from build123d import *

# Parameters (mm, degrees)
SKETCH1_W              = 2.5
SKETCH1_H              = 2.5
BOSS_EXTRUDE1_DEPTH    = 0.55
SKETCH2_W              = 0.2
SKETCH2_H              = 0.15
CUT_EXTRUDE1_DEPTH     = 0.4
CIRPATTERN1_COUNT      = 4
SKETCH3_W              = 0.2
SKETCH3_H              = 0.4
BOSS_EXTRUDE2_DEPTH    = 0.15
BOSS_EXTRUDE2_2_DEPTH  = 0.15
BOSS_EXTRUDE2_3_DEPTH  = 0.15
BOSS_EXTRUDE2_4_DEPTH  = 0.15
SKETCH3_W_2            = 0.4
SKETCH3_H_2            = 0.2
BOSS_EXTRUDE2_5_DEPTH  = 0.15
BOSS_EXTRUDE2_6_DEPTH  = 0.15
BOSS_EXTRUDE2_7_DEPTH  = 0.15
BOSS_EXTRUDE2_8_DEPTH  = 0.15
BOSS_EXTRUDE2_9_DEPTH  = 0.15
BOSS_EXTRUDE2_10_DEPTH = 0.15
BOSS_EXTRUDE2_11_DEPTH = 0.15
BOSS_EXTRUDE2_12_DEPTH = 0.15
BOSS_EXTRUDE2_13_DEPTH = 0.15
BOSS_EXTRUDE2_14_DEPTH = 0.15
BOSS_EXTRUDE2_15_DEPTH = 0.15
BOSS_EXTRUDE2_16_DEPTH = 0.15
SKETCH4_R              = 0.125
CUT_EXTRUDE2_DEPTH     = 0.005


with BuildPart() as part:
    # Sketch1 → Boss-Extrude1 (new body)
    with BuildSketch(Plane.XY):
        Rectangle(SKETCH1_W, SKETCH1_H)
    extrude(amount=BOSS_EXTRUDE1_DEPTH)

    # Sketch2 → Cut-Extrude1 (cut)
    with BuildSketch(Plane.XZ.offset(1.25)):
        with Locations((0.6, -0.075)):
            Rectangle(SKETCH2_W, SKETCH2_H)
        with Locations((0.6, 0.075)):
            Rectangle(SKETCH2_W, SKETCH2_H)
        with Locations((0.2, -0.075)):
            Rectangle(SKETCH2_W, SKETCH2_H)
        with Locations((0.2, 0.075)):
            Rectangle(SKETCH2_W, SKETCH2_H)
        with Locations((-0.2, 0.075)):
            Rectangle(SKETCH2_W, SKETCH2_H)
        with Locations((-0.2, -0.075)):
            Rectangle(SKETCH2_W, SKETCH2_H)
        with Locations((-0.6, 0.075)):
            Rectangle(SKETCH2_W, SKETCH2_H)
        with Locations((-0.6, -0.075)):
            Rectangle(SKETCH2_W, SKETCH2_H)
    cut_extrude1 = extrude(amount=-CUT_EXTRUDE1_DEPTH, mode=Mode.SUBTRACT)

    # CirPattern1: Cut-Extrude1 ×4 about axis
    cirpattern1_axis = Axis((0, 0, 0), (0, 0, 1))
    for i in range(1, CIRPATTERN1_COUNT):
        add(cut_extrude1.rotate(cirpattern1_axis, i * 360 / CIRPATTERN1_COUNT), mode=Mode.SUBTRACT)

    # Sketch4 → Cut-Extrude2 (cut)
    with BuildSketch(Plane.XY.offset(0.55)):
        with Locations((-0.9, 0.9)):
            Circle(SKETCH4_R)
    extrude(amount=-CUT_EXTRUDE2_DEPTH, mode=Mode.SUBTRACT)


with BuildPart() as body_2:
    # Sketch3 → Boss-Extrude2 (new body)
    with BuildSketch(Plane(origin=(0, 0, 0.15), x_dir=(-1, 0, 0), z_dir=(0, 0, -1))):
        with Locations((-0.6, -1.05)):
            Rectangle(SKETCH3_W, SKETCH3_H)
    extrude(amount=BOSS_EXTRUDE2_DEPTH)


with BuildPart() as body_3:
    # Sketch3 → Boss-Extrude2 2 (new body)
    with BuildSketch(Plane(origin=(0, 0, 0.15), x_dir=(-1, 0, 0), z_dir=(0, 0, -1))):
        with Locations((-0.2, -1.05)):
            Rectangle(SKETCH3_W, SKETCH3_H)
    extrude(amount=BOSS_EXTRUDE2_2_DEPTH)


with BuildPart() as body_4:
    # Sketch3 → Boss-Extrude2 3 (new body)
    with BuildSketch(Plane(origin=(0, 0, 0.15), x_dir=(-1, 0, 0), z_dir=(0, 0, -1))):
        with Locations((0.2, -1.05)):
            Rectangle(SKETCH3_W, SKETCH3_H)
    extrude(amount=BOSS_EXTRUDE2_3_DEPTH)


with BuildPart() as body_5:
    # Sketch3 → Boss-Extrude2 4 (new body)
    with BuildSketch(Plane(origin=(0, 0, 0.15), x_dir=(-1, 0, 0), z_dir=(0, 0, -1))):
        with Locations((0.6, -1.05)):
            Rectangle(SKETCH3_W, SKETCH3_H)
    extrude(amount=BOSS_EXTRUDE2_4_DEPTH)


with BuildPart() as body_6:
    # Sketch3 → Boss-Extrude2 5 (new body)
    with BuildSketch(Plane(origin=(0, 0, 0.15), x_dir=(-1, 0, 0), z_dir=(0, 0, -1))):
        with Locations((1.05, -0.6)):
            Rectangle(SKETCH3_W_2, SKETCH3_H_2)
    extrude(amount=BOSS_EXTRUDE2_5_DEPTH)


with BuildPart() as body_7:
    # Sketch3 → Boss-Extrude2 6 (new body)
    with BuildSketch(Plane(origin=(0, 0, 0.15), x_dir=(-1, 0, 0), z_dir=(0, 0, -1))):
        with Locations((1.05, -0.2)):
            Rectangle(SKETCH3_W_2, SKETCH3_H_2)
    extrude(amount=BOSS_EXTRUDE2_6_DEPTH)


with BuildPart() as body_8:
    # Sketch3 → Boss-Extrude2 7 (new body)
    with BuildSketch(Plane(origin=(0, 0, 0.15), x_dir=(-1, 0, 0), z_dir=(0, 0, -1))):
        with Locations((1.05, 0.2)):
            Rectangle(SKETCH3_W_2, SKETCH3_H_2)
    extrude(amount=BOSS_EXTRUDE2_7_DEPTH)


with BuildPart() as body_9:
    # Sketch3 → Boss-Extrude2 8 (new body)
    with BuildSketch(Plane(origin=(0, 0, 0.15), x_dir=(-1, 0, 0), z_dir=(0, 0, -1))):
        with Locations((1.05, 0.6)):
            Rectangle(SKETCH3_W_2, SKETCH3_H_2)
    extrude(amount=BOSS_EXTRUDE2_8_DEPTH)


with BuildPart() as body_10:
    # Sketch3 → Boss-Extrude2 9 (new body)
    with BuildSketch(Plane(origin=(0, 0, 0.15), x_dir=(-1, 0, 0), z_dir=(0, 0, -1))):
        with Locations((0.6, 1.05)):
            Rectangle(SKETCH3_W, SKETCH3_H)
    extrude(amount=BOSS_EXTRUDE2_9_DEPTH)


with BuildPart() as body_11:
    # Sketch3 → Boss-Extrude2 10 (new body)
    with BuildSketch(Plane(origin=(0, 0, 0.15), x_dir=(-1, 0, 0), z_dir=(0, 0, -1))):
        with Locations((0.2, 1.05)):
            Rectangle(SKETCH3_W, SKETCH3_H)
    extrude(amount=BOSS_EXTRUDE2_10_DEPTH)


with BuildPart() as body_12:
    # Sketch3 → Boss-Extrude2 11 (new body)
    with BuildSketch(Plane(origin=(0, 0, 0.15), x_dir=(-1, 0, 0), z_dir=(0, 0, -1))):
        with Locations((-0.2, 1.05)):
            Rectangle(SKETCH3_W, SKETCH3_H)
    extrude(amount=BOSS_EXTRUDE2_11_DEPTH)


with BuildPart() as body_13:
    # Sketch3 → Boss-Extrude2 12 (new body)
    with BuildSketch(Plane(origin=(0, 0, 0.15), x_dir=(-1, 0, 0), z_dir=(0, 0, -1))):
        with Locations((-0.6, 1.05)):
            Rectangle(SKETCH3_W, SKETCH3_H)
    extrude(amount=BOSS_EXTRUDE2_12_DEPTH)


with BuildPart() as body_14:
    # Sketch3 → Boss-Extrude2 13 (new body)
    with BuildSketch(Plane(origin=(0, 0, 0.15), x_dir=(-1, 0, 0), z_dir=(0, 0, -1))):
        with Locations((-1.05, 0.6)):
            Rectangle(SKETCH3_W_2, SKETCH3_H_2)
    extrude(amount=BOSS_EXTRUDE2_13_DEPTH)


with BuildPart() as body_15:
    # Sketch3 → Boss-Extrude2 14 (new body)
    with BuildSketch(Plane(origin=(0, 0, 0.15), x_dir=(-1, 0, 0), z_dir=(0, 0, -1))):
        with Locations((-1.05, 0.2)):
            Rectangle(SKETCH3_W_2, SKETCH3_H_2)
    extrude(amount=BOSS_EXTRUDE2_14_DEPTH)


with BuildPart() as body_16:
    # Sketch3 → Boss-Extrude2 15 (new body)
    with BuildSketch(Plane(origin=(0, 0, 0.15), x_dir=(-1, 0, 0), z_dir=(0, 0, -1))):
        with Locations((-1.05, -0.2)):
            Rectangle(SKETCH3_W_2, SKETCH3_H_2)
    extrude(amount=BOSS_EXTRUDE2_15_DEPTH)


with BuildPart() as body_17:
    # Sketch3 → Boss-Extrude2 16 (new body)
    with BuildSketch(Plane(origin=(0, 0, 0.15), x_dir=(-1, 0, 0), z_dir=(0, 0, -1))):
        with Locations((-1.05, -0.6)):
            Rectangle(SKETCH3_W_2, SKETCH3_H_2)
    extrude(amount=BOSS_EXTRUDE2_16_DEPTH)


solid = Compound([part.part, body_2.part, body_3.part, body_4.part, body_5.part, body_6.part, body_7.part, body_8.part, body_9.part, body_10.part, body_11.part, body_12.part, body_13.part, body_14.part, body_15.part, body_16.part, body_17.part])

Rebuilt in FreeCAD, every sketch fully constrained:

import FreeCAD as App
import Part
import Sketcher

doc = App.newDocument("Part")
body = doc.addObject("PartDesign::Body", "Body")

# Sketch on XY plane
sketch1 = doc.addObject("Sketcher::SketchObject", "Sketch")
body.addObject(sketch1)
sketch1.AttachmentSupport = (doc.XY_Plane, [""])
sketch1.MapMode = "FlatFace"
sketch1.addGeometry(Part.LineSegment(App.Vector(-1.2, 1.2, 0), App.Vector(-1.2, -1.2, 0)), False)
sketch1.addGeometry(Part.LineSegment(App.Vector(-1.2, -1.2, 0), App.Vector(1.2, -1.2, 0)), False)
sketch1.addGeometry(Part.LineSegment(App.Vector(1.2, -1.2, 0), App.Vector(1.2, 1.2, 0)), False)
sketch1.addGeometry(Part.LineSegment(App.Vector(1.2, 1.2, 0), App.Vector(-1.2, 1.2, 0)), False)
sketch1.addConstraint(Sketcher.Constraint("Coincident", 0, 2, 1, 1))
sketch1.addConstraint(Sketcher.Constraint("Coincident", 1, 2, 2, 1))
sketch1.addConstraint(Sketcher.Constraint("Coincident", 2, 2, 3, 1))
sketch1.addConstraint(Sketcher.Constraint("Coincident", 3, 2, 0, 1))
sketch1.addConstraint(Sketcher.Constraint("Vertical", 0))
sketch1.addConstraint(Sketcher.Constraint("Horizontal", 1))
sketch1.addConstraint(Sketcher.Constraint("Vertical", 2))
sketch1.addConstraint(Sketcher.Constraint("Horizontal", 3))
sketch1.addConstraint(Sketcher.Constraint("Symmetric", 0, 2, 2, 2, -1, 1))
sketch1.addConstraint(Sketcher.Constraint("Equal", 3, 0))
sketch1.addConstraint(Sketcher.Constraint("DistanceX", 1, 1, 1, 2, 2.5))
pad1 = doc.addObject("PartDesign::Pad", "Pad")
body.addObject(pad1)
pad1.Profile = sketch1
pad1.Length = 0.55

# Sketch on XZ plane
sketch2 = doc.addObject("Sketcher::SketchObject", "Sketch001")
body.addObject(sketch2)
sketch2.AttachmentSupport = (doc.XZ_Plane, [""])
sketch2.MapMode = "FlatFace"
sketch2.AttachmentOffset = App.Placement(App.Vector(0, 0, 1.25), App.Rotation())
sketch2.addGeometry(Part.LineSegment(App.Vector(0.5, -0.15, 0), App.Vector(0.7, -0.15, 0)), False)
sketch2.addGeometry(Part.LineSegment(App.Vector(0.7, -0.15, 0), App.Vector(0.7, 0.15, 0)), False)
sketch2.addGeometry(Part.LineSegment(App.Vector(0.7, 0.15, 0), App.Vector(0.5, 0.15, 0)), False)
sketch2.addGeometry(Part.LineSegment(App.Vector(0.5, 0.15, 0), App.Vector(0.5, -0.15, 0)), False)
sketch2.addGeometry(Part.LineSegment(App.Vector(0.1, -0.15, 0), App.Vector(0.3, -0.15, 0)), False)
sketch2.addGeometry(Part.LineSegment(App.Vector(0.3, -0.15, 0), App.Vector(0.3, 0.15, 0)), False)
sketch2.addGeometry(Part.LineSegment(App.Vector(0.3, 0.15, 0), App.Vector(0.1, 0.15, 0)), False)
sketch2.addGeometry(Part.LineSegment(App.Vector(0.1, 0.15, 0), App.Vector(0.1, -0.15, 0)), False)
sketch2.addGeometry(Part.LineSegment(App.Vector(-0.3, 0.15, 0), App.Vector(-0.3, -0.15, 0)), False)
sketch2.addGeometry(Part.LineSegment(App.Vector(-0.3, -0.15, 0), App.Vector(-0.1, -0.15, 0)), False)
sketch2.addGeometry(Part.LineSegment(App.Vector(-0.1, -0.15, 0), App.Vector(-0.1, 0.15, 0)), False)
sketch2.addGeometry(Part.LineSegment(App.Vector(-0.1, 0.15, 0), App.Vector(-0.3, 0.15, 0)), False)
sketch2.addGeometry(Part.LineSegment(App.Vector(-0.7, 0.15, 0), App.Vector(-0.7, -0.15, 0)), False)
sketch2.addGeometry(Part.LineSegment(App.Vector(-0.7, -0.15, 0), App.Vector(-0.5, -0.15, 0)), False)
sketch2.addGeometry(Part.LineSegment(App.Vector(-0.5, -0.15, 0), App.Vector(-0.5, 0.15, 0)), False)
sketch2.addGeometry(Part.LineSegment(App.Vector(-0.5, 0.15, 0), App.Vector(-0.7, 0.15, 0)), False)
sketch2.addConstraint(Sketcher.Constraint("Coincident", 0, 2, 1, 1))
sketch2.addConstraint(Sketcher.Constraint("Coincident", 1, 2, 2, 1))
sketch2.addConstraint(Sketcher.Constraint("Coincident", 2, 2, 3, 1))
sketch2.addConstraint(Sketcher.Constraint("Coincident", 3, 2, 0, 1))
sketch2.addConstraint(Sketcher.Constraint("Coincident", 4, 2, 5, 1))
sketch2.addConstraint(Sketcher.Constraint("Coincident", 5, 2, 6, 1))
sketch2.addConstraint(Sketcher.Constraint("Coincident", 6, 2, 7, 1))
sketch2.addConstraint(Sketcher.Constraint("Coincident", 7, 2, 4, 1))
sketch2.addConstraint(Sketcher.Constraint("Coincident", 8, 2, 9, 1))
sketch2.addConstraint(Sketcher.Constraint("Coincident", 9, 2, 10, 1))
sketch2.addConstraint(Sketcher.Constraint("Coincident", 10, 2, 11, 1))
sketch2.addConstraint(Sketcher.Constraint("Coincident", 11, 2, 8, 1))
sketch2.addConstraint(Sketcher.Constraint("Coincident", 12, 2, 13, 1))
sketch2.addConstraint(Sketcher.Constraint("Coincident", 13, 2, 14, 1))
sketch2.addConstraint(Sketcher.Constraint("Coincident", 14, 2, 15, 1))
sketch2.addConstraint(Sketcher.Constraint("Coincident", 15, 2, 12, 1))
sketch2.addConstraint(Sketcher.Constraint("Horizontal", 0))
sketch2.addConstraint(Sketcher.Constraint("Vertical", 1))
sketch2.addConstraint(Sketcher.Constraint("Horizontal", 2))
sketch2.addConstraint(Sketcher.Constraint("Vertical", 3))
sketch2.addConstraint(Sketcher.Constraint("Horizontal", 4))
sketch2.addConstraint(Sketcher.Constraint("Vertical", 5))
sketch2.addConstraint(Sketcher.Constraint("Horizontal", 6))
sketch2.addConstraint(Sketcher.Constraint("Vertical", 7))
sketch2.addConstraint(Sketcher.Constraint("Vertical", 8))
sketch2.addConstraint(Sketcher.Constraint("Horizontal", 9))
sketch2.addConstraint(Sketcher.Constraint("Vertical", 10))
sketch2.addConstraint(Sketcher.Constraint("Horizontal", 11))
sketch2.addConstraint(Sketcher.Constraint("Vertical", 12))
sketch2.addConstraint(Sketcher.Constraint("Horizontal", 13))
sketch2.addConstraint(Sketcher.Constraint("Vertical", 14))
sketch2.addConstraint(Sketcher.Constraint("Horizontal", 15))
sketch2.addConstraint(Sketcher.Constraint("Symmetric", 5, 2, 8, 2, -1, 1))
sketch2.addConstraint(Sketcher.Constraint("Symmetric", 7, 2, 10, 2, -1, 1))
sketch2.addConstraint(Sketcher.Constraint("Symmetric", 1, 2, 12, 2, -1, 1))
sketch2.addConstraint(Sketcher.Constraint("Symmetric", 3, 2, 14, 2, -1, 1))
sketch2.addConstraint(Sketcher.Constraint("Horizontal", 3, 2, 4, 2))
sketch2.addConstraint(Sketcher.Constraint("Horizontal", 2, 2, 5, 2))
sketch2.addConstraint(Sketcher.Constraint("Horizontal", 7, 2, 8, 2))
sketch2.addConstraint(Sketcher.Constraint("Equal", 2, 4))
sketch2.addConstraint(Sketcher.Constraint("DistanceX", 0, 1, 0, 2, 0.2))
sketch2.addConstraint(Sketcher.Constraint("DistanceY", 1, 1, 1, 2, 0.3))
sketch2.addConstraint(Sketcher.Constraint("DistanceX", -1, 1, 0, 2, 0.7))
sketch2.addConstraint(Sketcher.Constraint("DistanceX", -1, 1, 4, 2, 0.3))
pocket1 = doc.addObject("PartDesign::Pocket", "Pocket")
body.addObject(pocket1)
pocket1.Profile = sketch2
pocket1.Length = 0.4
doc.recompute()

polarpattern = doc.addObject("PartDesign::PolarPattern", "PolarPattern")
body.addObject(polarpattern)
polarpattern.Originals = [pocket1]
polarpattern.Axis = (doc.Z_Axis, [""])
polarpattern.Angle = 360
polarpattern.Occurrences = 4
body.Tip = polarpattern

# Sketch on XY plane
sketch3 = doc.addObject("Sketcher::SketchObject", "Sketch002")
body.addObject(sketch3)
sketch3.AttachmentSupport = (doc.XY_Plane, [""])
sketch3.MapMode = "FlatFace"
sketch3.AttachmentOffset = App.Placement(App.Vector(0, 0, 0.55), App.Rotation())
sketch3.addGeometry(Part.Circle(App.Vector(-0.9, 0.9, 0), App.Vector(0, 0, 1), 0.12), False)
sketch3.addConstraint(Sketcher.Constraint("Diameter", 0, 0.25))
sketch3.addConstraint(Sketcher.Constraint("DistanceX", 0, 3, -1, 1, 0.9))
sketch3.addConstraint(Sketcher.Constraint("DistanceY", -1, 1, 0, 3, 0.9))
pocket2 = doc.addObject("PartDesign::Pocket", "Pocket001")
body.addObject(pocket2)
pocket2.Profile = sketch3
pocket2.Length = 0.005
body2 = doc.addObject("PartDesign::Body", "Body001")

# Sketch on XY plane
sketch4 = doc.addObject("Sketcher::SketchObject", "Sketch003")
body2.addObject(sketch4)
sketch4.AttachmentSupport = (doc.getObject("XY_Plane001"), [""])
sketch4.MapMode = "FlatFace"
sketch4.AttachmentOffset = App.Placement(App.Vector(0, 0, 0.15), App.Rotation())
sketch4.addGeometry(Part.LineSegment(App.Vector(0.7, -0.85, 0), App.Vector(0.7, -1.25, 0)), False)
sketch4.addGeometry(Part.LineSegment(App.Vector(0.7, -1.25, 0), App.Vector(0.5, -1.25, 0)), False)
sketch4.addGeometry(Part.LineSegment(App.Vector(0.5, -1.25, 0), App.Vector(0.5, -0.85, 0)), False)
sketch4.addGeometry(Part.LineSegment(App.Vector(0.5, -0.85, 0), App.Vector(0.7, -0.85, 0)), False)
sketch4.addConstraint(Sketcher.Constraint("Coincident", 0, 2, 1, 1))
sketch4.addConstraint(Sketcher.Constraint("Coincident", 1, 2, 2, 1))
sketch4.addConstraint(Sketcher.Constraint("Coincident", 2, 2, 3, 1))
sketch4.addConstraint(Sketcher.Constraint("Coincident", 3, 2, 0, 1))
sketch4.addConstraint(Sketcher.Constraint("Vertical", 0))
sketch4.addConstraint(Sketcher.Constraint("Horizontal", 1))
sketch4.addConstraint(Sketcher.Constraint("Vertical", 2))
sketch4.addConstraint(Sketcher.Constraint("Horizontal", 3))
sketch4.addConstraint(Sketcher.Constraint("DistanceX", 1, 2, 1, 1, 0.2))
sketch4.addConstraint(Sketcher.Constraint("DistanceY", 0, 2, 0, 1, 0.4))
sketch4.addConstraint(Sketcher.Constraint("DistanceX", -1, 1, 0, 2, 0.7))
sketch4.addConstraint(Sketcher.Constraint("DistanceY", 0, 2, -1, 1, 1.25))
pad2 = doc.addObject("PartDesign::Pad", "Pad001")
body2.addObject(pad2)
pad2.Profile = sketch4
pad2.Length = 0.15
pad2.Reversed = True
body3 = doc.addObject("PartDesign::Body", "Body002")

# Sketch on XY plane
sketch5 = doc.addObject("Sketcher::SketchObject", "Sketch004")
body3.addObject(sketch5)
sketch5.AttachmentSupport = (doc.getObject("XY_Plane002"), [""])
sketch5.MapMode = "FlatFace"
sketch5.AttachmentOffset = App.Placement(App.Vector(0, 0, 0.15), App.Rotation())
sketch5.addGeometry(Part.LineSegment(App.Vector(0.3, -0.85, 0), App.Vector(0.3, -1.25, 0)), False)
sketch5.addGeometry(Part.LineSegment(App.Vector(0.3, -1.25, 0), App.Vector(0.1, -1.25, 0)), False)
sketch5.addGeometry(Part.LineSegment(App.Vector(0.1, -1.25, 0), App.Vector(0.1, -0.85, 0)), False)
sketch5.addGeometry(Part.LineSegment(App.Vector(0.1, -0.85, 0), App.Vector(0.3, -0.85, 0)), False)
sketch5.addConstraint(Sketcher.Constraint("Coincident", 0, 2, 1, 1))
sketch5.addConstraint(Sketcher.Constraint("Coincident", 1, 2, 2, 1))
sketch5.addConstraint(Sketcher.Constraint("Coincident", 2, 2, 3, 1))
sketch5.addConstraint(Sketcher.Constraint("Coincident", 3, 2, 0, 1))
sketch5.addConstraint(Sketcher.Constraint("Vertical", 0))
sketch5.addConstraint(Sketcher.Constraint("Horizontal", 1))
sketch5.addConstraint(Sketcher.Constraint("Vertical", 2))
sketch5.addConstraint(Sketcher.Constraint("Horizontal", 3))
sketch5.addConstraint(Sketcher.Constraint("DistanceX", 1, 2, 1, 1, 0.2))
sketch5.addConstraint(Sketcher.Constraint("DistanceY", 0, 2, 0, 1, 0.4))
sketch5.addConstraint(Sketcher.Constraint("DistanceX", -1, 1, 0, 2, 0.3))
sketch5.addConstraint(Sketcher.Constraint("DistanceY", 0, 2, -1, 1, 1.25))
pad3 = doc.addObject("PartDesign::Pad", "Pad002")
body3.addObject(pad3)
pad3.Profile = sketch5
pad3.Length = 0.15
pad3.Reversed = True
body4 = doc.addObject("PartDesign::Body", "Body003")

# Sketch on XY plane
sketch6 = doc.addObject("Sketcher::SketchObject", "Sketch005")
body4.addObject(sketch6)
sketch6.AttachmentSupport = (doc.getObject("XY_Plane003"), [""])
sketch6.MapMode = "FlatFace"
sketch6.AttachmentOffset = App.Placement(App.Vector(0, 0, 0.15), App.Rotation())
sketch6.addGeometry(Part.LineSegment(App.Vector(-0.1, -0.85, 0), App.Vector(-0.1, -1.25, 0)), False)
sketch6.addGeometry(Part.LineSegment(App.Vector(-0.1, -1.25, 0), App.Vector(-0.3, -1.25, 0)), False)
sketch6.addGeometry(Part.LineSegment(App.Vector(-0.3, -1.25, 0), App.Vector(-0.3, -0.85, 0)), False)
sketch6.addGeometry(Part.LineSegment(App.Vector(-0.3, -0.85, 0), App.Vector(-0.1, -0.85, 0)), False)
sketch6.addConstraint(Sketcher.Constraint("Coincident", 0, 2, 1, 1))
sketch6.addConstraint(Sketcher.Constraint("Coincident", 1, 2, 2, 1))
sketch6.addConstraint(Sketcher.Constraint("Coincident", 2, 2, 3, 1))
sketch6.addConstraint(Sketcher.Constraint("Coincident", 3, 2, 0, 1))
sketch6.addConstraint(Sketcher.Constraint("Vertical", 0))
sketch6.addConstraint(Sketcher.Constraint("Horizontal", 1))
sketch6.addConstraint(Sketcher.Constraint("Vertical", 2))
sketch6.addConstraint(Sketcher.Constraint("Horizontal", 3))
sketch6.addConstraint(Sketcher.Constraint("DistanceX", 1, 2, 1, 1, 0.2))
sketch6.addConstraint(Sketcher.Constraint("DistanceY", 0, 2, 0, 1, 0.4))
sketch6.addConstraint(Sketcher.Constraint("DistanceX", 0, 2, -1, 1, 0.1))
sketch6.addConstraint(Sketcher.Constraint("DistanceY", 0, 2, -1, 1, 1.25))
pad4 = doc.addObject("PartDesign::Pad", "Pad003")
body4.addObject(pad4)
pad4.Profile = sketch6
pad4.Length = 0.15
pad4.Reversed = True
body5 = doc.addObject("PartDesign::Body", "Body004")

# Sketch on XY plane
sketch7 = doc.addObject("Sketcher::SketchObject", "Sketch006")
body5.addObject(sketch7)
sketch7.AttachmentSupport = (doc.getObject("XY_Plane004"), [""])
sketch7.MapMode = "FlatFace"
sketch7.AttachmentOffset = App.Placement(App.Vector(0, 0, 0.15), App.Rotation())
sketch7.addGeometry(Part.LineSegment(App.Vector(-0.5, -0.85, 0), App.Vector(-0.5, -1.25, 0)), False)
sketch7.addGeometry(Part.LineSegment(App.Vector(-0.5, -1.25, 0), App.Vector(-0.7, -1.25, 0)), False)
sketch7.addGeometry(Part.LineSegment(App.Vector(-0.7, -1.25, 0), App.Vector(-0.7, -0.85, 0)), False)
sketch7.addGeometry(Part.LineSegment(App.Vector(-0.7, -0.85, 0), App.Vector(-0.5, -0.85, 0)), False)
sketch7.addConstraint(Sketcher.Constraint("Coincident", 0, 2, 1, 1))
sketch7.addConstraint(Sketcher.Constraint("Coincident", 1, 2, 2, 1))
sketch7.addConstraint(Sketcher.Constraint("Coincident", 2, 2, 3, 1))
sketch7.addConstraint(Sketcher.Constraint("Coincident", 3, 2, 0, 1))
sketch7.addConstraint(Sketcher.Constraint("Vertical", 0))
sketch7.addConstraint(Sketcher.Constraint("Horizontal", 1))
sketch7.addConstraint(Sketcher.Constraint("Vertical", 2))
sketch7.addConstraint(Sketcher.Constraint("Horizontal", 3))
sketch7.addConstraint(Sketcher.Constraint("DistanceX", 1, 2, 1, 1, 0.2))
sketch7.addConstraint(Sketcher.Constraint("DistanceY", 0, 2, 0, 1, 0.4))
sketch7.addConstraint(Sketcher.Constraint("DistanceX", 0, 2, -1, 1, 0.5))
sketch7.addConstraint(Sketcher.Constraint("DistanceY", 0, 2, -1, 1, 1.25))
pad5 = doc.addObject("PartDesign::Pad", "Pad004")
body5.addObject(pad5)
pad5.Profile = sketch7
pad5.Length = 0.15
pad5.Reversed = True
body6 = doc.addObject("PartDesign::Body", "Body005")

# Sketch on XY plane
sketch8 = doc.addObject("Sketcher::SketchObject", "Sketch007")
body6.addObject(sketch8)
sketch8.AttachmentSupport = (doc.getObject("XY_Plane005"), [""])
sketch8.MapMode = "FlatFace"
sketch8.AttachmentOffset = App.Placement(App.Vector(0, 0, 0.15), App.Rotation())
sketch8.addGeometry(Part.LineSegment(App.Vector(-0.85, -0.5, 0), App.Vector(-0.85, -0.7, 0)), False)
sketch8.addGeometry(Part.LineSegment(App.Vector(-0.85, -0.7, 0), App.Vector(-1.25, -0.7, 0)), False)
sketch8.addGeometry(Part.LineSegment(App.Vector(-1.25, -0.7, 0), App.Vector(-1.25, -0.5, 0)), False)
sketch8.addGeometry(Part.LineSegment(App.Vector(-1.25, -0.5, 0), App.Vector(-0.85, -0.5, 0)), False)
sketch8.addConstraint(Sketcher.Constraint("Coincident", 0, 2, 1, 1))
sketch8.addConstraint(Sketcher.Constraint("Coincident", 1, 2, 2, 1))
sketch8.addConstraint(Sketcher.Constraint("Coincident", 2, 2, 3, 1))
sketch8.addConstraint(Sketcher.Constraint("Coincident", 3, 2, 0, 1))
sketch8.addConstraint(Sketcher.Constraint("Vertical", 0))
sketch8.addConstraint(Sketcher.Constraint("Horizontal", 1))
sketch8.addConstraint(Sketcher.Constraint("Vertical", 2))
sketch8.addConstraint(Sketcher.Constraint("Horizontal", 3))
sketch8.addConstraint(Sketcher.Constraint("DistanceX", 1, 2, 1, 1, 0.4))
sketch8.addConstraint(Sketcher.Constraint("DistanceY", 0, 2, 0, 1, 0.2))
sketch8.addConstraint(Sketcher.Constraint("DistanceY", 0, 2, -1, 1, 0.7))
sketch8.addConstraint(Sketcher.Constraint("DistanceX", 0, 2, -1, 1, 0.85))
pad6 = doc.addObject("PartDesign::Pad", "Pad005")
body6.addObject(pad6)
pad6.Profile = sketch8
pad6.Length = 0.15
pad6.Reversed = True
body7 = doc.addObject("PartDesign::Body", "Body006")

# Sketch on XY plane
sketch9 = doc.addObject("Sketcher::SketchObject", "Sketch008")
body7.addObject(sketch9)
sketch9.AttachmentSupport = (doc.getObject("XY_Plane006"), [""])
sketch9.MapMode = "FlatFace"
sketch9.AttachmentOffset = App.Placement(App.Vector(0, 0, 0.15), App.Rotation())
sketch9.addGeometry(Part.LineSegment(App.Vector(-0.85, -0.1, 0), App.Vector(-0.85, -0.3, 0)), False)
sketch9.addGeometry(Part.LineSegment(App.Vector(-0.85, -0.3, 0), App.Vector(-1.25, -0.3, 0)), False)
sketch9.addGeometry(Part.LineSegment(App.Vector(-1.25, -0.3, 0), App.Vector(-1.25, -0.1, 0)), False)
sketch9.addGeometry(Part.LineSegment(App.Vector(-1.25, -0.1, 0), App.Vector(-0.85, -0.1, 0)), False)
sketch9.addConstraint(Sketcher.Constraint("Coincident", 0, 2, 1, 1))
sketch9.addConstraint(Sketcher.Constraint("Coincident", 1, 2, 2, 1))
sketch9.addConstraint(Sketcher.Constraint("Coincident", 2, 2, 3, 1))
sketch9.addConstraint(Sketcher.Constraint("Coincident", 3, 2, 0, 1))
sketch9.addConstraint(Sketcher.Constraint("Vertical", 0))
sketch9.addConstraint(Sketcher.Constraint("Horizontal", 1))
sketch9.addConstraint(Sketcher.Constraint("Vertical", 2))
sketch9.addConstraint(Sketcher.Constraint("Horizontal", 3))
sketch9.addConstraint(Sketcher.Constraint("DistanceX", 1, 2, 1, 1, 0.4))
sketch9.addConstraint(Sketcher.Constraint("DistanceY", 0, 2, 0, 1, 0.2))
sketch9.addConstraint(Sketcher.Constraint("DistanceY", 0, 2, -1, 1, 0.3))
sketch9.addConstraint(Sketcher.Constraint("DistanceX", 0, 2, -1, 1, 0.85))
pad7 = doc.addObject("PartDesign::Pad", "Pad006")
body7.addObject(pad7)
pad7.Profile = sketch9
pad7.Length = 0.15
pad7.Reversed = True
body8 = doc.addObject("PartDesign::Body", "Body007")

# Sketch on XY plane
sketch10 = doc.addObject("Sketcher::SketchObject", "Sketch009")
body8.addObject(sketch10)
sketch10.AttachmentSupport = (doc.getObject("XY_Plane007"), [""])
sketch10.MapMode = "FlatFace"
sketch10.AttachmentOffset = App.Placement(App.Vector(0, 0, 0.15), App.Rotation())
sketch10.addGeometry(Part.LineSegment(App.Vector(-0.85, 0.3, 0), App.Vector(-0.85, 0.1, 0)), False)
sketch10.addGeometry(Part.LineSegment(App.Vector(-0.85, 0.1, 0), App.Vector(-1.25, 0.1, 0)), False)
sketch10.addGeometry(Part.LineSegment(App.Vector(-1.25, 0.1, 0), App.Vector(-1.25, 0.3, 0)), False)
sketch10.addGeometry(Part.LineSegment(App.Vector(-1.25, 0.3, 0), App.Vector(-0.85, 0.3, 0)), False)
sketch10.addConstraint(Sketcher.Constraint("Coincident", 0, 2, 1, 1))
sketch10.addConstraint(Sketcher.Constraint("Coincident", 1, 2, 2, 1))
sketch10.addConstraint(Sketcher.Constraint("Coincident", 2, 2, 3, 1))
sketch10.addConstraint(Sketcher.Constraint("Coincident", 3, 2, 0, 1))
sketch10.addConstraint(Sketcher.Constraint("Vertical", 0))
sketch10.addConstraint(Sketcher.Constraint("Horizontal", 1))
sketch10.addConstraint(Sketcher.Constraint("Vertical", 2))
sketch10.addConstraint(Sketcher.Constraint("Horizontal", 3))
sketch10.addConstraint(Sketcher.Constraint("DistanceX", 1, 2, 1, 1, 0.4))
sketch10.addConstraint(Sketcher.Constraint("DistanceY", 0, 2, 0, 1, 0.2))
sketch10.addConstraint(Sketcher.Constraint("DistanceY", -1, 1, 0, 2, 0.1))
sketch10.addConstraint(Sketcher.Constraint("DistanceX", 0, 2, -1, 1, 0.85))
pad8 = doc.addObject("PartDesign::Pad", "Pad007")
body8.addObject(pad8)
pad8.Profile = sketch10
pad8.Length = 0.15
pad8.Reversed = True
body9 = doc.addObject("PartDesign::Body", "Body008")

# Sketch on XY plane
sketch11 = doc.addObject("Sketcher::SketchObject", "Sketch010")
body9.addObject(sketch11)
sketch11.AttachmentSupport = (doc.getObject("XY_Plane008"), [""])
sketch11.MapMode = "FlatFace"
sketch11.AttachmentOffset = App.Placement(App.Vector(0, 0, 0.15), App.Rotation())
sketch11.addGeometry(Part.LineSegment(App.Vector(-0.85, 0.7, 0), App.Vector(-0.85, 0.5, 0)), False)
sketch11.addGeometry(Part.LineSegment(App.Vector(-0.85, 0.5, 0), App.Vector(-1.25, 0.5, 0)), False)
sketch11.addGeometry(Part.LineSegment(App.Vector(-1.25, 0.5, 0), App.Vector(-1.25, 0.7, 0)), False)
sketch11.addGeometry(Part.LineSegment(App.Vector(-1.25, 0.7, 0), App.Vector(-0.85, 0.7, 0)), False)
sketch11.addConstraint(Sketcher.Constraint("Coincident", 0, 2, 1, 1))
sketch11.addConstraint(Sketcher.Constraint("Coincident", 1, 2, 2, 1))
sketch11.addConstraint(Sketcher.Constraint("Coincident", 2, 2, 3, 1))
sketch11.addConstraint(Sketcher.Constraint("Coincident", 3, 2, 0, 1))
sketch11.addConstraint(Sketcher.Constraint("Vertical", 0))
sketch11.addConstraint(Sketcher.Constraint("Horizontal", 1))
sketch11.addConstraint(Sketcher.Constraint("Vertical", 2))
sketch11.addConstraint(Sketcher.Constraint("Horizontal", 3))
sketch11.addConstraint(Sketcher.Constraint("DistanceX", 1, 2, 1, 1, 0.4))
sketch11.addConstraint(Sketcher.Constraint("DistanceY", 0, 2, 0, 1, 0.2))
sketch11.addConstraint(Sketcher.Constraint("DistanceY", -1, 1, 0, 2, 0.5))
sketch11.addConstraint(Sketcher.Constraint("DistanceX", 0, 2, -1, 1, 0.85))
pad9 = doc.addObject("PartDesign::Pad", "Pad008")
body9.addObject(pad9)
pad9.Profile = sketch11
pad9.Length = 0.15
pad9.Reversed = True
body10 = doc.addObject("PartDesign::Body", "Body009")

# Sketch on XY plane
sketch12 = doc.addObject("Sketcher::SketchObject", "Sketch011")
body10.addObject(sketch12)
sketch12.AttachmentSupport = (doc.getObject("XY_Plane009"), [""])
sketch12.MapMode = "FlatFace"
sketch12.AttachmentOffset = App.Placement(App.Vector(0, 0, 0.15), App.Rotation())
sketch12.addGeometry(Part.LineSegment(App.Vector(-0.5, 1.25, 0), App.Vector(-0.5, 0.85, 0)), False)
sketch12.addGeometry(Part.LineSegment(App.Vector(-0.5, 0.85, 0), App.Vector(-0.7, 0.85, 0)), False)
sketch12.addGeometry(Part.LineSegment(App.Vector(-0.7, 0.85, 0), App.Vector(-0.7, 1.25, 0)), False)
sketch12.addGeometry(Part.LineSegment(App.Vector(-0.7, 1.25, 0), App.Vector(-0.5, 1.25, 0)), False)
sketch12.addConstraint(Sketcher.Constraint("Coincident", 0, 2, 1, 1))
sketch12.addConstraint(Sketcher.Constraint("Coincident", 1, 2, 2, 1))
sketch12.addConstraint(Sketcher.Constraint("Coincident", 2, 2, 3, 1))
sketch12.addConstraint(Sketcher.Constraint("Coincident", 3, 2, 0, 1))
sketch12.addConstraint(Sketcher.Constraint("Vertical", 0))
sketch12.addConstraint(Sketcher.Constraint("Horizontal", 1))
sketch12.addConstraint(Sketcher.Constraint("Vertical", 2))
sketch12.addConstraint(Sketcher.Constraint("Horizontal", 3))
sketch12.addConstraint(Sketcher.Constraint("DistanceX", 1, 2, 1, 1, 0.2))
sketch12.addConstraint(Sketcher.Constraint("DistanceY", 0, 2, 0, 1, 0.4))
sketch12.addConstraint(Sketcher.Constraint("DistanceX", 0, 2, -1, 1, 0.5))
sketch12.addConstraint(Sketcher.Constraint("DistanceY", -1, 1, 0, 2, 0.85))
pad10 = doc.addObject("PartDesign::Pad", "Pad009")
body10.addObject(pad10)
pad10.Profile = sketch12
pad10.Length = 0.15
pad10.Reversed = True
body11 = doc.addObject("PartDesign::Body", "Body010")

# Sketch on XY plane
sketch13 = doc.addObject("Sketcher::SketchObject", "Sketch012")
body11.addObject(sketch13)
sketch13.AttachmentSupport = (doc.getObject("XY_Plane010"), [""])
sketch13.MapMode = "FlatFace"
sketch13.AttachmentOffset = App.Placement(App.Vector(0, 0, 0.15), App.Rotation())
sketch13.addGeometry(Part.LineSegment(App.Vector(-0.1, 1.25, 0), App.Vector(-0.1, 0.85, 0)), False)
sketch13.addGeometry(Part.LineSegment(App.Vector(-0.1, 0.85, 0), App.Vector(-0.3, 0.85, 0)), False)
sketch13.addGeometry(Part.LineSegment(App.Vector(-0.3, 0.85, 0), App.Vector(-0.3, 1.25, 0)), False)
sketch13.addGeometry(Part.LineSegment(App.Vector(-0.3, 1.25, 0), App.Vector(-0.1, 1.25, 0)), False)
sketch13.addConstraint(Sketcher.Constraint("Coincident", 0, 2, 1, 1))
sketch13.addConstraint(Sketcher.Constraint("Coincident", 1, 2, 2, 1))
sketch13.addConstraint(Sketcher.Constraint("Coincident", 2, 2, 3, 1))
sketch13.addConstraint(Sketcher.Constraint("Coincident", 3, 2, 0, 1))
sketch13.addConstraint(Sketcher.Constraint("Vertical", 0))
sketch13.addConstraint(Sketcher.Constraint("Horizontal", 1))
sketch13.addConstraint(Sketcher.Constraint("Vertical", 2))
sketch13.addConstraint(Sketcher.Constraint("Horizontal", 3))
sketch13.addConstraint(Sketcher.Constraint("DistanceX", 1, 2, 1, 1, 0.2))
sketch13.addConstraint(Sketcher.Constraint("DistanceY", 0, 2, 0, 1, 0.4))
sketch13.addConstraint(Sketcher.Constraint("DistanceX", 0, 2, -1, 1, 0.1))
sketch13.addConstraint(Sketcher.Constraint("DistanceY", -1, 1, 0, 2, 0.85))
pad11 = doc.addObject("PartDesign::Pad", "Pad010")
body11.addObject(pad11)
pad11.Profile = sketch13
pad11.Length = 0.15
pad11.Reversed = True
body12 = doc.addObject("PartDesign::Body", "Body011")

# Sketch on XY plane
sketch14 = doc.addObject("Sketcher::SketchObject", "Sketch013")
body12.addObject(sketch14)
sketch14.AttachmentSupport = (doc.getObject("XY_Plane011"), [""])
sketch14.MapMode = "FlatFace"
sketch14.AttachmentOffset = App.Placement(App.Vector(0, 0, 0.15), App.Rotation())
sketch14.addGeometry(Part.LineSegment(App.Vector(0.3, 1.25, 0), App.Vector(0.3, 0.85, 0)), False)
sketch14.addGeometry(Part.LineSegment(App.Vector(0.3, 0.85, 0), App.Vector(0.1, 0.85, 0)), False)
sketch14.addGeometry(Part.LineSegment(App.Vector(0.1, 0.85, 0), App.Vector(0.1, 1.25, 0)), False)
sketch14.addGeometry(Part.LineSegment(App.Vector(0.1, 1.25, 0), App.Vector(0.3, 1.25, 0)), False)
sketch14.addConstraint(Sketcher.Constraint("Coincident", 0, 2, 1, 1))
sketch14.addConstraint(Sketcher.Constraint("Coincident", 1, 2, 2, 1))
sketch14.addConstraint(Sketcher.Constraint("Coincident", 2, 2, 3, 1))
sketch14.addConstraint(Sketcher.Constraint("Coincident", 3, 2, 0, 1))
sketch14.addConstraint(Sketcher.Constraint("Vertical", 0))
sketch14.addConstraint(Sketcher.Constraint("Horizontal", 1))
sketch14.addConstraint(Sketcher.Constraint("Vertical", 2))
sketch14.addConstraint(Sketcher.Constraint("Horizontal", 3))
sketch14.addConstraint(Sketcher.Constraint("DistanceX", 1, 2, 1, 1, 0.2))
sketch14.addConstraint(Sketcher.Constraint("DistanceY", 0, 2, 0, 1, 0.4))
sketch14.addConstraint(Sketcher.Constraint("DistanceX", -1, 1, 0, 2, 0.3))
sketch14.addConstraint(Sketcher.Constraint("DistanceY", -1, 1, 0, 2, 0.85))
pad12 = doc.addObject("PartDesign::Pad", "Pad011")
body12.addObject(pad12)
pad12.Profile = sketch14
pad12.Length = 0.15
pad12.Reversed = True
body13 = doc.addObject("PartDesign::Body", "Body012")

# Sketch on XY plane
sketch15 = doc.addObject("Sketcher::SketchObject", "Sketch014")
body13.addObject(sketch15)
sketch15.AttachmentSupport = (doc.getObject("XY_Plane012"), [""])
sketch15.MapMode = "FlatFace"
sketch15.AttachmentOffset = App.Placement(App.Vector(0, 0, 0.15), App.Rotation())
sketch15.addGeometry(Part.LineSegment(App.Vector(0.7, 1.25, 0), App.Vector(0.7, 0.85, 0)), False)
sketch15.addGeometry(Part.LineSegment(App.Vector(0.7, 0.85, 0), App.Vector(0.5, 0.85, 0)), False)
sketch15.addGeometry(Part.LineSegment(App.Vector(0.5, 0.85, 0), App.Vector(0.5, 1.25, 0)), False)
sketch15.addGeometry(Part.LineSegment(App.Vector(0.5, 1.25, 0), App.Vector(0.7, 1.25, 0)), False)
sketch15.addConstraint(Sketcher.Constraint("Coincident", 0, 2, 1, 1))
sketch15.addConstraint(Sketcher.Constraint("Coincident", 1, 2, 2, 1))
sketch15.addConstraint(Sketcher.Constraint("Coincident", 2, 2, 3, 1))
sketch15.addConstraint(Sketcher.Constraint("Coincident", 3, 2, 0, 1))
sketch15.addConstraint(Sketcher.Constraint("Vertical", 0))
sketch15.addConstraint(Sketcher.Constraint("Horizontal", 1))
sketch15.addConstraint(Sketcher.Constraint("Vertical", 2))
sketch15.addConstraint(Sketcher.Constraint("Horizontal", 3))
sketch15.addConstraint(Sketcher.Constraint("DistanceX", 1, 2, 1, 1, 0.2))
sketch15.addConstraint(Sketcher.Constraint("DistanceY", 0, 2, 0, 1, 0.4))
sketch15.addConstraint(Sketcher.Constraint("DistanceX", -1, 1, 0, 2, 0.7))
sketch15.addConstraint(Sketcher.Constraint("DistanceY", -1, 1, 0, 2, 0.85))
pad13 = doc.addObject("PartDesign::Pad", "Pad012")
body13.addObject(pad13)
pad13.Profile = sketch15
pad13.Length = 0.15
pad13.Reversed = True
body14 = doc.addObject("PartDesign::Body", "Body013")

# Sketch on XY plane
sketch16 = doc.addObject("Sketcher::SketchObject", "Sketch015")
body14.addObject(sketch16)
sketch16.AttachmentSupport = (doc.getObject("XY_Plane013"), [""])
sketch16.MapMode = "FlatFace"
sketch16.AttachmentOffset = App.Placement(App.Vector(0, 0, 0.15), App.Rotation())
sketch16.addGeometry(Part.LineSegment(App.Vector(1.25, 0.7, 0), App.Vector(1.25, 0.5, 0)), False)
sketch16.addGeometry(Part.LineSegment(App.Vector(1.25, 0.5, 0), App.Vector(0.85, 0.5, 0)), False)
sketch16.addGeometry(Part.LineSegment(App.Vector(0.85, 0.5, 0), App.Vector(0.85, 0.7, 0)), False)
sketch16.addGeometry(Part.LineSegment(App.Vector(0.85, 0.7, 0), App.Vector(1.25, 0.7, 0)), False)
sketch16.addConstraint(Sketcher.Constraint("Coincident", 0, 2, 1, 1))
sketch16.addConstraint(Sketcher.Constraint("Coincident", 1, 2, 2, 1))
sketch16.addConstraint(Sketcher.Constraint("Coincident", 2, 2, 3, 1))
sketch16.addConstraint(Sketcher.Constraint("Coincident", 3, 2, 0, 1))
sketch16.addConstraint(Sketcher.Constraint("Vertical", 0))
sketch16.addConstraint(Sketcher.Constraint("Horizontal", 1))
sketch16.addConstraint(Sketcher.Constraint("Vertical", 2))
sketch16.addConstraint(Sketcher.Constraint("Horizontal", 3))
sketch16.addConstraint(Sketcher.Constraint("DistanceX", 1, 2, 1, 1, 0.4))
sketch16.addConstraint(Sketcher.Constraint("DistanceY", 0, 2, 0, 1, 0.2))
sketch16.addConstraint(Sketcher.Constraint("DistanceY", -1, 1, 0, 2, 0.5))
sketch16.addConstraint(Sketcher.Constraint("DistanceX", -1, 1, 0, 2, 1.25))
pad14 = doc.addObject("PartDesign::Pad", "Pad013")
body14.addObject(pad14)
pad14.Profile = sketch16
pad14.Length = 0.15
pad14.Reversed = True
body15 = doc.addObject("PartDesign::Body", "Body014")

# Sketch on XY plane
sketch17 = doc.addObject("Sketcher::SketchObject", "Sketch016")
body15.addObject(sketch17)
sketch17.AttachmentSupport = (doc.getObject("XY_Plane014"), [""])
sketch17.MapMode = "FlatFace"
sketch17.AttachmentOffset = App.Placement(App.Vector(0, 0, 0.15), App.Rotation())
sketch17.addGeometry(Part.LineSegment(App.Vector(1.25, 0.3, 0), App.Vector(1.25, 0.1, 0)), False)
sketch17.addGeometry(Part.LineSegment(App.Vector(1.25, 0.1, 0), App.Vector(0.85, 0.1, 0)), False)
sketch17.addGeometry(Part.LineSegment(App.Vector(0.85, 0.1, 0), App.Vector(0.85, 0.3, 0)), False)
sketch17.addGeometry(Part.LineSegment(App.Vector(0.85, 0.3, 0), App.Vector(1.25, 0.3, 0)), False)
sketch17.addConstraint(Sketcher.Constraint("Coincident", 0, 2, 1, 1))
sketch17.addConstraint(Sketcher.Constraint("Coincident", 1, 2, 2, 1))
sketch17.addConstraint(Sketcher.Constraint("Coincident", 2, 2, 3, 1))
sketch17.addConstraint(Sketcher.Constraint("Coincident", 3, 2, 0, 1))
sketch17.addConstraint(Sketcher.Constraint("Vertical", 0))
sketch17.addConstraint(Sketcher.Constraint("Horizontal", 1))
sketch17.addConstraint(Sketcher.Constraint("Vertical", 2))
sketch17.addConstraint(Sketcher.Constraint("Horizontal", 3))
sketch17.addConstraint(Sketcher.Constraint("DistanceX", 1, 2, 1, 1, 0.4))
sketch17.addConstraint(Sketcher.Constraint("DistanceY", 0, 2, 0, 1, 0.2))
sketch17.addConstraint(Sketcher.Constraint("DistanceY", -1, 1, 0, 2, 0.1))
sketch17.addConstraint(Sketcher.Constraint("DistanceX", -1, 1, 0, 2, 1.25))
pad15 = doc.addObject("PartDesign::Pad", "Pad014")
body15.addObject(pad15)
pad15.Profile = sketch17
pad15.Length = 0.15
pad15.Reversed = True
body16 = doc.addObject("PartDesign::Body", "Body015")

# Sketch on XY plane
sketch18 = doc.addObject("Sketcher::SketchObject", "Sketch017")
body16.addObject(sketch18)
sketch18.AttachmentSupport = (doc.getObject("XY_Plane015"), [""])
sketch18.MapMode = "FlatFace"
sketch18.AttachmentOffset = App.Placement(App.Vector(0, 0, 0.15), App.Rotation())
sketch18.addGeometry(Part.LineSegment(App.Vector(1.25, -0.1, 0), App.Vector(1.25, -0.3, 0)), False)
sketch18.addGeometry(Part.LineSegment(App.Vector(1.25, -0.3, 0), App.Vector(0.85, -0.3, 0)), False)
sketch18.addGeometry(Part.LineSegment(App.Vector(0.85, -0.3, 0), App.Vector(0.85, -0.1, 0)), False)
sketch18.addGeometry(Part.LineSegment(App.Vector(0.85, -0.1, 0), App.Vector(1.25, -0.1, 0)), False)
sketch18.addConstraint(Sketcher.Constraint("Coincident", 0, 2, 1, 1))
sketch18.addConstraint(Sketcher.Constraint("Coincident", 1, 2, 2, 1))
sketch18.addConstraint(Sketcher.Constraint("Coincident", 2, 2, 3, 1))
sketch18.addConstraint(Sketcher.Constraint("Coincident", 3, 2, 0, 1))
sketch18.addConstraint(Sketcher.Constraint("Vertical", 0))
sketch18.addConstraint(Sketcher.Constraint("Horizontal", 1))
sketch18.addConstraint(Sketcher.Constraint("Vertical", 2))
sketch18.addConstraint(Sketcher.Constraint("Horizontal", 3))
sketch18.addConstraint(Sketcher.Constraint("DistanceX", 1, 2, 1, 1, 0.4))
sketch18.addConstraint(Sketcher.Constraint("DistanceY", 0, 2, 0, 1, 0.2))
sketch18.addConstraint(Sketcher.Constraint("DistanceY", 0, 2, -1, 1, 0.3))
sketch18.addConstraint(Sketcher.Constraint("DistanceX", -1, 1, 0, 2, 1.25))
pad16 = doc.addObject("PartDesign::Pad", "Pad015")
body16.addObject(pad16)
pad16.Profile = sketch18
pad16.Length = 0.15
pad16.Reversed = True
body17 = doc.addObject("PartDesign::Body", "Body016")

# Sketch on XY plane
sketch19 = doc.addObject("Sketcher::SketchObject", "Sketch018")
body17.addObject(sketch19)
sketch19.AttachmentSupport = (doc.getObject("XY_Plane016"), [""])
sketch19.MapMode = "FlatFace"
sketch19.AttachmentOffset = App.Placement(App.Vector(0, 0, 0.15), App.Rotation())
sketch19.addGeometry(Part.LineSegment(App.Vector(1.25, -0.5, 0), App.Vector(1.25, -0.7, 0)), False)
sketch19.addGeometry(Part.LineSegment(App.Vector(1.25, -0.7, 0), App.Vector(0.85, -0.7, 0)), False)
sketch19.addGeometry(Part.LineSegment(App.Vector(0.85, -0.7, 0), App.Vector(0.85, -0.5, 0)), False)
sketch19.addGeometry(Part.LineSegment(App.Vector(0.85, -0.5, 0), App.Vector(1.25, -0.5, 0)), False)
sketch19.addConstraint(Sketcher.Constraint("Coincident", 0, 2, 1, 1))
sketch19.addConstraint(Sketcher.Constraint("Coincident", 1, 2, 2, 1))
sketch19.addConstraint(Sketcher.Constraint("Coincident", 2, 2, 3, 1))
sketch19.addConstraint(Sketcher.Constraint("Coincident", 3, 2, 0, 1))
sketch19.addConstraint(Sketcher.Constraint("Vertical", 0))
sketch19.addConstraint(Sketcher.Constraint("Horizontal", 1))
sketch19.addConstraint(Sketcher.Constraint("Vertical", 2))
sketch19.addConstraint(Sketcher.Constraint("Horizontal", 3))
sketch19.addConstraint(Sketcher.Constraint("DistanceX", 1, 2, 1, 1, 0.4))
sketch19.addConstraint(Sketcher.Constraint("DistanceY", 0, 2, 0, 1, 0.2))
sketch19.addConstraint(Sketcher.Constraint("DistanceY", 0, 2, -1, 1, 0.7))
sketch19.addConstraint(Sketcher.Constraint("DistanceX", -1, 1, 0, 2, 1.25))
pad17 = doc.addObject("PartDesign::Pad", "Pad016")
body17.addObject(pad17)
pad17.Profile = sketch19
pad17.Length = 0.15
pad17.Reversed = True

doc.recompute()
